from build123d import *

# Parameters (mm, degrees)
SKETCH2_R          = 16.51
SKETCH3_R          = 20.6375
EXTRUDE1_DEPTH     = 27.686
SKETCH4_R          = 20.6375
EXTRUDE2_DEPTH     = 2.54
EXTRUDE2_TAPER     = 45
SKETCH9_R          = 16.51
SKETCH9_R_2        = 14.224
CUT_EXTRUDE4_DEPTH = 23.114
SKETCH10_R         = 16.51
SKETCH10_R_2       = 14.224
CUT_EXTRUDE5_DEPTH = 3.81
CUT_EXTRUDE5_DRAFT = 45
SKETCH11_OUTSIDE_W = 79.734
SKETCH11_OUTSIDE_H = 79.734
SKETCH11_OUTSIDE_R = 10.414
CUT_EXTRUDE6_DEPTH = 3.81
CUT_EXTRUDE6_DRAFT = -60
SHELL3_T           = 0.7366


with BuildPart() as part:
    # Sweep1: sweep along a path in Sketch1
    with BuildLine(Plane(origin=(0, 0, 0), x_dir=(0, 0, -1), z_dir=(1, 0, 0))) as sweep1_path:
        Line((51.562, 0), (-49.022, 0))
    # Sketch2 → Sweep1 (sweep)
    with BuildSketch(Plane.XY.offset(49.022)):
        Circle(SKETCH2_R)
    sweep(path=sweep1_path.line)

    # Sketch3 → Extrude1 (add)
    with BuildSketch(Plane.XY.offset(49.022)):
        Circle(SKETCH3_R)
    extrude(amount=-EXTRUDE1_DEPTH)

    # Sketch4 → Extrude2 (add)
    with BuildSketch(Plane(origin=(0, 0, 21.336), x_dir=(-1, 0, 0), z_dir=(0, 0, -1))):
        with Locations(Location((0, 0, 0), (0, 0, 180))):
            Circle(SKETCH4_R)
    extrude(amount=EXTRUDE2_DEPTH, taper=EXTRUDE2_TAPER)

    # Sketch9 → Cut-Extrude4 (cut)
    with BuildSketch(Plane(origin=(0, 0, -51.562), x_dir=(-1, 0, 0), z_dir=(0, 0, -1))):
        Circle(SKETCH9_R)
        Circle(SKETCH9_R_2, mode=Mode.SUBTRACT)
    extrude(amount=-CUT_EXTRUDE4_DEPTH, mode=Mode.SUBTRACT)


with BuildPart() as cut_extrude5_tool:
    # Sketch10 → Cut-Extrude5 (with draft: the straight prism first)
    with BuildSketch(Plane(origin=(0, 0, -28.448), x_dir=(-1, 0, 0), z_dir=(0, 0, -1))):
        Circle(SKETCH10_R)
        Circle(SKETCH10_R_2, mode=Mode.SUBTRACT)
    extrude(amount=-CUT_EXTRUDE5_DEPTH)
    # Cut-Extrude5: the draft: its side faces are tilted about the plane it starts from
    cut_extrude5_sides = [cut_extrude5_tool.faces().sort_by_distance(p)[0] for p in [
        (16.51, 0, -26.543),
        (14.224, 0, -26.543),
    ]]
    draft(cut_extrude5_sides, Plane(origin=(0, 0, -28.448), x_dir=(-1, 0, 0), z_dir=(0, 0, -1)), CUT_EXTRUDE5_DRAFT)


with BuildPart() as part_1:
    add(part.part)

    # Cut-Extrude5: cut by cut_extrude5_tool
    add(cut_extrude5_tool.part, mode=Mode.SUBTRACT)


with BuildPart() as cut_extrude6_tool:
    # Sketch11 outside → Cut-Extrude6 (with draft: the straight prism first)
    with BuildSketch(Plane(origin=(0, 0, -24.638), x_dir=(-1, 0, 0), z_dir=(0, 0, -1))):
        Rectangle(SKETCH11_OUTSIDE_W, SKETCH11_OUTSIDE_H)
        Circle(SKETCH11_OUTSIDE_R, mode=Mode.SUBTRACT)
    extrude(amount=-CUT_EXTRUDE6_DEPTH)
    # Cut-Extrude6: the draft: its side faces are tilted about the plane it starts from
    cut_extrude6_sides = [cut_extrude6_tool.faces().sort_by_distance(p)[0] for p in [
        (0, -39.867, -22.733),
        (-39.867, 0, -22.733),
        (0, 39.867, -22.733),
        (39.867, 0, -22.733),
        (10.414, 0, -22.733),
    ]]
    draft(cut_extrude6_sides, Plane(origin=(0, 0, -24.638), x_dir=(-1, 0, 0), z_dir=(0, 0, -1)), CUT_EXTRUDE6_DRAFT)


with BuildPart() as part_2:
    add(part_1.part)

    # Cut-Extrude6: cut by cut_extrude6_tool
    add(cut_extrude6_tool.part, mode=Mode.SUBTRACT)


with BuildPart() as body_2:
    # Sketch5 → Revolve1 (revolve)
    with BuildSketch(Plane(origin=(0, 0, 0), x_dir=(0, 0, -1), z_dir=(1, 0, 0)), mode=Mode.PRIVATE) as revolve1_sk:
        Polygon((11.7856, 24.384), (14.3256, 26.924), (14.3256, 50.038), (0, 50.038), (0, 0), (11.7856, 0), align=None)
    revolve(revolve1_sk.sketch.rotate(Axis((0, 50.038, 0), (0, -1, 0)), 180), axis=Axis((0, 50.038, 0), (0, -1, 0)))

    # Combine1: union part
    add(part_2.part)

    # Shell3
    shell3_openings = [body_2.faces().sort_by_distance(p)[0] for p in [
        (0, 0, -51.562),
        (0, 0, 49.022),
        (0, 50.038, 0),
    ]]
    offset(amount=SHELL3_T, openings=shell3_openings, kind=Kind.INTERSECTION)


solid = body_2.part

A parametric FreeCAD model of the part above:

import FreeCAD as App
import Part
import Sketcher
Q = App.Units.Quantity


def faces_at(feature, points):
    """Names of the faces that lie closest to the given points."""
    faces = feature.Shape.Faces
    near = lambda p: min(range(len(faces)), key=lambda i: faces[i].distToShape(Part.Vertex(*p))[0])
    return sorted({f"Face{near(p) + 1}" for p in points})

doc = App.newDocument("Part")
body = doc.addObject("PartDesign::Body", "Body")

sketch1 = body.newObject("Sketcher::SketchObject", "Sketch")
sketch1.AttachmentSupport = (doc.getObject("XY_Plane"), [""])
sketch1.MapMode = "FlatFace"
sketch1.AttachmentOffset = App.Placement(App.Vector(0, 0, 1.93 * 25.4), App.Rotation())
sketch1.addGeometry(Part.Circle(App.Vector(0, 0, 0), App.Vector(0, 0, 1), 17), False)
sketch1.addConstraint([
    Sketcher.Constraint("Coincident", 0, 3, -1, 1),
    Sketcher.Constraint("Diameter", 0, Q("1.3 in")),
])

sketch2 = body.newObject("Sketcher::SketchObject", "Sketch001")
sketch2.AttachmentSupport = (doc.getObject("XZ_Plane"), [""])
sketch2.MapMode = "FlatFace"
sketch2.addGeometry(Part.LineSegment(App.Vector(0, -52, 0), App.Vector(0, 49, 0)), False)
sketch2.addConstraint([
    Sketcher.Constraint("Vertical", 0),
    Sketcher.Constraint("PointOnObject", 0, 1, -2),
    Sketcher.Constraint("DistanceY", 0, 1, 0, 2, Q("3.96 in")),
    Sketcher.Constraint("DistanceY", 0, 1, -1, 1, Q("2.03 in")),
])
doc.recompute()

additivepipe = body.newObject("PartDesign::AdditivePipe", "AdditivePipe")
additivepipe.Profile = sketch1
additivepipe.Spine = (sketch2, ["Edge1"])

sketch3 = body.newObject("Sketcher::SketchObject", "Sketch002")
sketch3.AttachmentSupport = (doc.getObject("XY_Plane"), [""])
sketch3.MapMode = "FlatFace"
sketch3.AttachmentOffset = App.Placement(App.Vector(0, 0, 1.93 * 25.4), App.Rotation())
sketch3.addGeometry(Part.Circle(App.Vector(0, 0, 0), App.Vector(0, 0, 1), 21), False)
sketch3.addConstraint([
    Sketcher.Constraint("Coincident", 0, 3, -1, 1),
    Sketcher.Constraint("Diameter", 0, Q("1.625 in")),
])
pad1 = body.newObject("PartDesign::Pad", "Pad")
pad1.Profile = sketch3
pad1.Length = Q("1.09 in")
pad1.Reversed = True

sketch4 = body.newObject("Sketcher::SketchObject", "Sketch003")
sketch4.AttachmentSupport = (doc.getObject("XY_Plane"), [""])
sketch4.MapMode = "FlatFace"
sketch4.AttachmentOffset = App.Placement(App.Vector(0, 0, 0.84 * 25.4), App.Rotation())
sketch4.addGeometry(Part.Circle(App.Vector(0, 0, 0), App.Vector(0, 0, 1), 21), False)
sketch4.addConstraint([
    Sketcher.Constraint("Coincident", 0, 3, -1, 1),
    Sketcher.Constraint("Diameter", 0, Q("1.625 in")),
])
pad2 = body.newObject("PartDesign::Pad", "Pad001")
pad2.Profile = sketch4
pad2.Length = Q("0.1 in")
pad2.Reversed = True
pad2.TaperAngle = -45

sketch5 = body.newObject("Sketcher::SketchObject", "Sketch004")
sketch5.AttachmentSupport = (doc.getObject("XY_Plane"), [""])
sketch5.MapMode = "FlatFace"
sketch5.AttachmentOffset = App.Placement(App.Vector(0, 0, -2.03 * 25.4), App.Rotation())
sketch5.addGeometry([
    Part.Circle(App.Vector(0, 0, 0), App.Vector(0, 0, 1), 17),
    Part.Circle(App.Vector(0, 0, 0), App.Vector(0, 0, 1), 14),
], False)
sketch5.addConstraint([
    Sketcher.Constraint("Coincident", 0, 3, -1, 1),
    Sketcher.Constraint("Coincident", 1, 3, -1, 1),
    Sketcher.Constraint("Diameter", 0, Q("1.3 in")),
    Sketcher.Constraint("Diameter", 1, Q("1.12 in")),
])
pocket1 = body.newObject("PartDesign::Pocket", "Pocket")
pocket1.Profile = sketch5
pocket1.Length = Q("0.91 in")
pocket1.Reversed = True
body2 = doc.addObject("PartDesign::Body", "Body001")

sketch6 = body2.newObject("Sketcher::SketchObject", "Sketch005")
sketch6.AttachmentSupport = (doc.getObject("XY_Plane001"), [""])
sketch6.MapMode = "FlatFace"
sketch6.AttachmentOffset = App.Placement(App.Vector(0, 0, -1.12 * 25.4), App.Rotation())
sketch6.addGeometry([
    Part.Circle(App.Vector(0, 0, 0), App.Vector(0, 0, 1), 17),
    Part.Circle(App.Vector(0, 0, 0), App.Vector(0, 0, 1), 14),
], False)
sketch6.addConstraint([
    Sketcher.Constraint("Coincident", 0, 3, -1, 1),
    Sketcher.Constraint("Coincident", 1, 3, -1, 1),
    Sketcher.Constraint("Diameter", 0, Q("1.3 in")),
    Sketcher.Constraint("Diameter", 1, Q("1.12 in")),
])
pad3 = body2.newObject("PartDesign::Pad", "Pad002")
pad3.Profile = sketch6
pad3.Length = Q("0.15 in")
doc.recompute()

datumplane = body2.newObject("PartDesign::Plane", "DatumPlane")
datumplane.AttachmentSupport = (doc.getObject("XY_Plane001"), [""])
datumplane.MapMode = "FlatFace"
datumplane.AttachmentOffset = App.Placement(App.Vector(0, 0, -1.12 * 25.4), App.Rotation())
draft = body2.newObject("PartDesign::Draft", "Draft")
draft.Base = (pad3, faces_at(pad3, [(16.51, 0, -26.543), (14.224, 0, -26.543)]))
draft.NeutralPlane = (datumplane, [""])
draft.Angle = 45
draft.Reversed = True
doc.recompute()

boolean = body.newObject("PartDesign::Boolean", "Boolean")
boolean.Type = "Cut"
boolean.addObjects([body2])
body3 = doc.addObject("PartDesign::Body", "Body002")

sketch7 = body3.newObject("Sketcher::SketchObject", "Sketch006")
sketch7.AttachmentSupport = (doc.getObject("XY_Plane002"), [""])
sketch7.MapMode = "FlatFace"
sketch7.AttachmentOffset = App.Placement(App.Vector(0, 0, -0.97 * 25.4), App.Rotation())
sketch7.addGeometry([
    Part.LineSegment(App.Vector(40, 40, 0), App.Vector(40, -40, 0)),
    Part.LineSegment(App.Vector(40, -40, 0), App.Vector(-40, -40, 0)),
    Part.LineSegment(App.Vector(-40, -40, 0), App.Vector(-40, 40, 0)),
    Part.LineSegment(App.Vector(-40, 40, 0), App.Vector(40, 40, 0)),
    Part.Circle(App.Vector(0, 0, 0), App.Vector(0, 0, 1), 10),
], False)
sketch7.addConstraint([
    Sketcher.Constraint("Coincident", 0, 2, 1, 1),
    Sketcher.Constraint("Coincident", 1, 2, 2, 1),
    Sketcher.Constraint("Coincident", 2, 2, 3, 1),
    Sketcher.Constraint("Coincident", 3, 2, 0, 1),
    Sketcher.Constraint("Vertical", 0),
    Sketcher.Constraint("Horizontal", 1),
    Sketcher.Constraint("Vertical", 2),
    Sketcher.Constraint("Horizontal", 3),
    Sketcher.Constraint("Coincident", 4, 3, -1, 1),
    Sketcher.Constraint("Symmetric", 0, 2, 2, 2, -1, 1),
    Sketcher.Constraint("Equal", 3, 0),
    Sketcher.Constraint("Diameter", 4, Q("0.82 in")),
    Sketcher.Constraint("DistanceX", 1, 2, 1, 1, 79.734),
])
pad4 = body3.newObject("PartDesign::Pad", "Pad003")
pad4.Profile = sketch7
pad4.Length = Q("0.15 in")
doc.recompute()

datumplane2 = body3.newObject("PartDesign::Plane", "DatumPlane001")
datumplane2.AttachmentSupport = (doc.getObject("XY_Plane002"), [""])
datumplane2.MapMode = "FlatFace"
datumplane2.AttachmentOffset = App.Placement(App.Vector(0, 0, -0.97 * 25.4), App.Rotation())
draft2 = body3.newObject("PartDesign::Draft", "Draft001")
draft2.Base = (pad4, faces_at(pad4, [
    (0, -39.867, -22.733),
    (-39.867, 0, -22.733),
    (0, 39.867, -22.733),
    (39.867, 0, -22.733),
    (10.414, 0, -22.733),
]))
draft2.NeutralPlane = (datumplane2, [""])
draft2.Angle = 60
draft2.Reversed = False
doc.recompute()

boolean2 = body.newObject("PartDesign::Boolean", "Boolean001")
boolean2.Type = "Cut"
boolean2.addObjects([body3])
body4 = doc.addObject("PartDesign::Body", "Body003")

sketch8 = body4.newObject("Sketcher::SketchObject", "Sketch007")
sketch8.AttachmentSupport = (doc.getObject("YZ_Plane003"), [""])
sketch8.MapMode = "FlatFace"
sketch8.addGeometry([
    Part.LineSegment(App.Vector(24.4, -11.8, 0), App.Vector(26.9, -14.3, 0)),
    Part.LineSegment(App.Vector(26.9, -14.3, 0), App.Vector(50, -14.3, 0)),
    Part.LineSegment(App.Vector(50, -14.3, 0), App.Vector(50, 0, 0)),
    Part.LineSegment(App.Vector(50, 0, 0), App.Vector(0, 0, 0)),
    Part.LineSegment(App.Vector(0, 0, 0), App.Vector(0, -11.8, 0)),
    Part.LineSegment(App.Vector(0, -11.8, 0), App.Vector(24.4, -11.8, 0)),
], False)
sketch8.addConstraint([
    Sketcher.Constraint("Coincident", 0, 2, 1, 1),
    Sketcher.Constraint("Coincident", 1, 2, 2, 1),
    Sketcher.Constraint("Coincident", 2, 2, 3, 1),
    Sketcher.Constraint("Coincident", 3, 2, 4, 1),
    Sketcher.Constraint("Coincident", 4, 2, 5, 1),
    Sketcher.Constraint("Coincident", 5, 2, 0, 1),
    Sketcher.Constraint("Horizontal", 1),
    Sketcher.Constraint("Vertical", 2),
    Sketcher.Constraint("Horizontal", 3),
    Sketcher.Constraint("Vertical", 4),
    Sketcher.Constraint("Horizontal", 5),
    Sketcher.Constraint("Coincident", 3, 2, -1, 1),
    Sketcher.Constraint("Angle", 0, Q("-45 deg")),
    Sketcher.Constraint("DistanceX", 1, 1, 1, 2, Q("0.91 in")),
    Sketcher.Constraint("DistanceX", 3, 2, 3, 1, Q("1.97 in")),
    Sketcher.Constraint("DistanceX", 5, 1, 5, 2, Q("0.96 in")),
    Sketcher.Constraint("DistanceY", 2, 1, 2, 2, Q("0.564 in")),
])
revolution = body4.newObject("PartDesign::Revolution", "Revolution")
revolution.Profile = sketch8
revolution.ReferenceAxis = (sketch8, ["H_Axis"])
revolution.Angle = 360
doc.recompute()

boolean3 = body4.newObject("PartDesign::Boolean", "Boolean002")
boolean3.Type = "Fuse"
boolean3.addObjects([body])
doc.recompute()

thickness = body4.newObject("PartDesign::Thickness", "Thickness")
thickness.Base = (boolean3, faces_at(boolean3, [(0, 0, -51.562), (0, 0, 49.022), (0, 50.038, 0)]))
thickness.Value = Q("0.029 in")
thickness.Reversed = False
thickness.Join = "Intersection"

doc.recompute()
